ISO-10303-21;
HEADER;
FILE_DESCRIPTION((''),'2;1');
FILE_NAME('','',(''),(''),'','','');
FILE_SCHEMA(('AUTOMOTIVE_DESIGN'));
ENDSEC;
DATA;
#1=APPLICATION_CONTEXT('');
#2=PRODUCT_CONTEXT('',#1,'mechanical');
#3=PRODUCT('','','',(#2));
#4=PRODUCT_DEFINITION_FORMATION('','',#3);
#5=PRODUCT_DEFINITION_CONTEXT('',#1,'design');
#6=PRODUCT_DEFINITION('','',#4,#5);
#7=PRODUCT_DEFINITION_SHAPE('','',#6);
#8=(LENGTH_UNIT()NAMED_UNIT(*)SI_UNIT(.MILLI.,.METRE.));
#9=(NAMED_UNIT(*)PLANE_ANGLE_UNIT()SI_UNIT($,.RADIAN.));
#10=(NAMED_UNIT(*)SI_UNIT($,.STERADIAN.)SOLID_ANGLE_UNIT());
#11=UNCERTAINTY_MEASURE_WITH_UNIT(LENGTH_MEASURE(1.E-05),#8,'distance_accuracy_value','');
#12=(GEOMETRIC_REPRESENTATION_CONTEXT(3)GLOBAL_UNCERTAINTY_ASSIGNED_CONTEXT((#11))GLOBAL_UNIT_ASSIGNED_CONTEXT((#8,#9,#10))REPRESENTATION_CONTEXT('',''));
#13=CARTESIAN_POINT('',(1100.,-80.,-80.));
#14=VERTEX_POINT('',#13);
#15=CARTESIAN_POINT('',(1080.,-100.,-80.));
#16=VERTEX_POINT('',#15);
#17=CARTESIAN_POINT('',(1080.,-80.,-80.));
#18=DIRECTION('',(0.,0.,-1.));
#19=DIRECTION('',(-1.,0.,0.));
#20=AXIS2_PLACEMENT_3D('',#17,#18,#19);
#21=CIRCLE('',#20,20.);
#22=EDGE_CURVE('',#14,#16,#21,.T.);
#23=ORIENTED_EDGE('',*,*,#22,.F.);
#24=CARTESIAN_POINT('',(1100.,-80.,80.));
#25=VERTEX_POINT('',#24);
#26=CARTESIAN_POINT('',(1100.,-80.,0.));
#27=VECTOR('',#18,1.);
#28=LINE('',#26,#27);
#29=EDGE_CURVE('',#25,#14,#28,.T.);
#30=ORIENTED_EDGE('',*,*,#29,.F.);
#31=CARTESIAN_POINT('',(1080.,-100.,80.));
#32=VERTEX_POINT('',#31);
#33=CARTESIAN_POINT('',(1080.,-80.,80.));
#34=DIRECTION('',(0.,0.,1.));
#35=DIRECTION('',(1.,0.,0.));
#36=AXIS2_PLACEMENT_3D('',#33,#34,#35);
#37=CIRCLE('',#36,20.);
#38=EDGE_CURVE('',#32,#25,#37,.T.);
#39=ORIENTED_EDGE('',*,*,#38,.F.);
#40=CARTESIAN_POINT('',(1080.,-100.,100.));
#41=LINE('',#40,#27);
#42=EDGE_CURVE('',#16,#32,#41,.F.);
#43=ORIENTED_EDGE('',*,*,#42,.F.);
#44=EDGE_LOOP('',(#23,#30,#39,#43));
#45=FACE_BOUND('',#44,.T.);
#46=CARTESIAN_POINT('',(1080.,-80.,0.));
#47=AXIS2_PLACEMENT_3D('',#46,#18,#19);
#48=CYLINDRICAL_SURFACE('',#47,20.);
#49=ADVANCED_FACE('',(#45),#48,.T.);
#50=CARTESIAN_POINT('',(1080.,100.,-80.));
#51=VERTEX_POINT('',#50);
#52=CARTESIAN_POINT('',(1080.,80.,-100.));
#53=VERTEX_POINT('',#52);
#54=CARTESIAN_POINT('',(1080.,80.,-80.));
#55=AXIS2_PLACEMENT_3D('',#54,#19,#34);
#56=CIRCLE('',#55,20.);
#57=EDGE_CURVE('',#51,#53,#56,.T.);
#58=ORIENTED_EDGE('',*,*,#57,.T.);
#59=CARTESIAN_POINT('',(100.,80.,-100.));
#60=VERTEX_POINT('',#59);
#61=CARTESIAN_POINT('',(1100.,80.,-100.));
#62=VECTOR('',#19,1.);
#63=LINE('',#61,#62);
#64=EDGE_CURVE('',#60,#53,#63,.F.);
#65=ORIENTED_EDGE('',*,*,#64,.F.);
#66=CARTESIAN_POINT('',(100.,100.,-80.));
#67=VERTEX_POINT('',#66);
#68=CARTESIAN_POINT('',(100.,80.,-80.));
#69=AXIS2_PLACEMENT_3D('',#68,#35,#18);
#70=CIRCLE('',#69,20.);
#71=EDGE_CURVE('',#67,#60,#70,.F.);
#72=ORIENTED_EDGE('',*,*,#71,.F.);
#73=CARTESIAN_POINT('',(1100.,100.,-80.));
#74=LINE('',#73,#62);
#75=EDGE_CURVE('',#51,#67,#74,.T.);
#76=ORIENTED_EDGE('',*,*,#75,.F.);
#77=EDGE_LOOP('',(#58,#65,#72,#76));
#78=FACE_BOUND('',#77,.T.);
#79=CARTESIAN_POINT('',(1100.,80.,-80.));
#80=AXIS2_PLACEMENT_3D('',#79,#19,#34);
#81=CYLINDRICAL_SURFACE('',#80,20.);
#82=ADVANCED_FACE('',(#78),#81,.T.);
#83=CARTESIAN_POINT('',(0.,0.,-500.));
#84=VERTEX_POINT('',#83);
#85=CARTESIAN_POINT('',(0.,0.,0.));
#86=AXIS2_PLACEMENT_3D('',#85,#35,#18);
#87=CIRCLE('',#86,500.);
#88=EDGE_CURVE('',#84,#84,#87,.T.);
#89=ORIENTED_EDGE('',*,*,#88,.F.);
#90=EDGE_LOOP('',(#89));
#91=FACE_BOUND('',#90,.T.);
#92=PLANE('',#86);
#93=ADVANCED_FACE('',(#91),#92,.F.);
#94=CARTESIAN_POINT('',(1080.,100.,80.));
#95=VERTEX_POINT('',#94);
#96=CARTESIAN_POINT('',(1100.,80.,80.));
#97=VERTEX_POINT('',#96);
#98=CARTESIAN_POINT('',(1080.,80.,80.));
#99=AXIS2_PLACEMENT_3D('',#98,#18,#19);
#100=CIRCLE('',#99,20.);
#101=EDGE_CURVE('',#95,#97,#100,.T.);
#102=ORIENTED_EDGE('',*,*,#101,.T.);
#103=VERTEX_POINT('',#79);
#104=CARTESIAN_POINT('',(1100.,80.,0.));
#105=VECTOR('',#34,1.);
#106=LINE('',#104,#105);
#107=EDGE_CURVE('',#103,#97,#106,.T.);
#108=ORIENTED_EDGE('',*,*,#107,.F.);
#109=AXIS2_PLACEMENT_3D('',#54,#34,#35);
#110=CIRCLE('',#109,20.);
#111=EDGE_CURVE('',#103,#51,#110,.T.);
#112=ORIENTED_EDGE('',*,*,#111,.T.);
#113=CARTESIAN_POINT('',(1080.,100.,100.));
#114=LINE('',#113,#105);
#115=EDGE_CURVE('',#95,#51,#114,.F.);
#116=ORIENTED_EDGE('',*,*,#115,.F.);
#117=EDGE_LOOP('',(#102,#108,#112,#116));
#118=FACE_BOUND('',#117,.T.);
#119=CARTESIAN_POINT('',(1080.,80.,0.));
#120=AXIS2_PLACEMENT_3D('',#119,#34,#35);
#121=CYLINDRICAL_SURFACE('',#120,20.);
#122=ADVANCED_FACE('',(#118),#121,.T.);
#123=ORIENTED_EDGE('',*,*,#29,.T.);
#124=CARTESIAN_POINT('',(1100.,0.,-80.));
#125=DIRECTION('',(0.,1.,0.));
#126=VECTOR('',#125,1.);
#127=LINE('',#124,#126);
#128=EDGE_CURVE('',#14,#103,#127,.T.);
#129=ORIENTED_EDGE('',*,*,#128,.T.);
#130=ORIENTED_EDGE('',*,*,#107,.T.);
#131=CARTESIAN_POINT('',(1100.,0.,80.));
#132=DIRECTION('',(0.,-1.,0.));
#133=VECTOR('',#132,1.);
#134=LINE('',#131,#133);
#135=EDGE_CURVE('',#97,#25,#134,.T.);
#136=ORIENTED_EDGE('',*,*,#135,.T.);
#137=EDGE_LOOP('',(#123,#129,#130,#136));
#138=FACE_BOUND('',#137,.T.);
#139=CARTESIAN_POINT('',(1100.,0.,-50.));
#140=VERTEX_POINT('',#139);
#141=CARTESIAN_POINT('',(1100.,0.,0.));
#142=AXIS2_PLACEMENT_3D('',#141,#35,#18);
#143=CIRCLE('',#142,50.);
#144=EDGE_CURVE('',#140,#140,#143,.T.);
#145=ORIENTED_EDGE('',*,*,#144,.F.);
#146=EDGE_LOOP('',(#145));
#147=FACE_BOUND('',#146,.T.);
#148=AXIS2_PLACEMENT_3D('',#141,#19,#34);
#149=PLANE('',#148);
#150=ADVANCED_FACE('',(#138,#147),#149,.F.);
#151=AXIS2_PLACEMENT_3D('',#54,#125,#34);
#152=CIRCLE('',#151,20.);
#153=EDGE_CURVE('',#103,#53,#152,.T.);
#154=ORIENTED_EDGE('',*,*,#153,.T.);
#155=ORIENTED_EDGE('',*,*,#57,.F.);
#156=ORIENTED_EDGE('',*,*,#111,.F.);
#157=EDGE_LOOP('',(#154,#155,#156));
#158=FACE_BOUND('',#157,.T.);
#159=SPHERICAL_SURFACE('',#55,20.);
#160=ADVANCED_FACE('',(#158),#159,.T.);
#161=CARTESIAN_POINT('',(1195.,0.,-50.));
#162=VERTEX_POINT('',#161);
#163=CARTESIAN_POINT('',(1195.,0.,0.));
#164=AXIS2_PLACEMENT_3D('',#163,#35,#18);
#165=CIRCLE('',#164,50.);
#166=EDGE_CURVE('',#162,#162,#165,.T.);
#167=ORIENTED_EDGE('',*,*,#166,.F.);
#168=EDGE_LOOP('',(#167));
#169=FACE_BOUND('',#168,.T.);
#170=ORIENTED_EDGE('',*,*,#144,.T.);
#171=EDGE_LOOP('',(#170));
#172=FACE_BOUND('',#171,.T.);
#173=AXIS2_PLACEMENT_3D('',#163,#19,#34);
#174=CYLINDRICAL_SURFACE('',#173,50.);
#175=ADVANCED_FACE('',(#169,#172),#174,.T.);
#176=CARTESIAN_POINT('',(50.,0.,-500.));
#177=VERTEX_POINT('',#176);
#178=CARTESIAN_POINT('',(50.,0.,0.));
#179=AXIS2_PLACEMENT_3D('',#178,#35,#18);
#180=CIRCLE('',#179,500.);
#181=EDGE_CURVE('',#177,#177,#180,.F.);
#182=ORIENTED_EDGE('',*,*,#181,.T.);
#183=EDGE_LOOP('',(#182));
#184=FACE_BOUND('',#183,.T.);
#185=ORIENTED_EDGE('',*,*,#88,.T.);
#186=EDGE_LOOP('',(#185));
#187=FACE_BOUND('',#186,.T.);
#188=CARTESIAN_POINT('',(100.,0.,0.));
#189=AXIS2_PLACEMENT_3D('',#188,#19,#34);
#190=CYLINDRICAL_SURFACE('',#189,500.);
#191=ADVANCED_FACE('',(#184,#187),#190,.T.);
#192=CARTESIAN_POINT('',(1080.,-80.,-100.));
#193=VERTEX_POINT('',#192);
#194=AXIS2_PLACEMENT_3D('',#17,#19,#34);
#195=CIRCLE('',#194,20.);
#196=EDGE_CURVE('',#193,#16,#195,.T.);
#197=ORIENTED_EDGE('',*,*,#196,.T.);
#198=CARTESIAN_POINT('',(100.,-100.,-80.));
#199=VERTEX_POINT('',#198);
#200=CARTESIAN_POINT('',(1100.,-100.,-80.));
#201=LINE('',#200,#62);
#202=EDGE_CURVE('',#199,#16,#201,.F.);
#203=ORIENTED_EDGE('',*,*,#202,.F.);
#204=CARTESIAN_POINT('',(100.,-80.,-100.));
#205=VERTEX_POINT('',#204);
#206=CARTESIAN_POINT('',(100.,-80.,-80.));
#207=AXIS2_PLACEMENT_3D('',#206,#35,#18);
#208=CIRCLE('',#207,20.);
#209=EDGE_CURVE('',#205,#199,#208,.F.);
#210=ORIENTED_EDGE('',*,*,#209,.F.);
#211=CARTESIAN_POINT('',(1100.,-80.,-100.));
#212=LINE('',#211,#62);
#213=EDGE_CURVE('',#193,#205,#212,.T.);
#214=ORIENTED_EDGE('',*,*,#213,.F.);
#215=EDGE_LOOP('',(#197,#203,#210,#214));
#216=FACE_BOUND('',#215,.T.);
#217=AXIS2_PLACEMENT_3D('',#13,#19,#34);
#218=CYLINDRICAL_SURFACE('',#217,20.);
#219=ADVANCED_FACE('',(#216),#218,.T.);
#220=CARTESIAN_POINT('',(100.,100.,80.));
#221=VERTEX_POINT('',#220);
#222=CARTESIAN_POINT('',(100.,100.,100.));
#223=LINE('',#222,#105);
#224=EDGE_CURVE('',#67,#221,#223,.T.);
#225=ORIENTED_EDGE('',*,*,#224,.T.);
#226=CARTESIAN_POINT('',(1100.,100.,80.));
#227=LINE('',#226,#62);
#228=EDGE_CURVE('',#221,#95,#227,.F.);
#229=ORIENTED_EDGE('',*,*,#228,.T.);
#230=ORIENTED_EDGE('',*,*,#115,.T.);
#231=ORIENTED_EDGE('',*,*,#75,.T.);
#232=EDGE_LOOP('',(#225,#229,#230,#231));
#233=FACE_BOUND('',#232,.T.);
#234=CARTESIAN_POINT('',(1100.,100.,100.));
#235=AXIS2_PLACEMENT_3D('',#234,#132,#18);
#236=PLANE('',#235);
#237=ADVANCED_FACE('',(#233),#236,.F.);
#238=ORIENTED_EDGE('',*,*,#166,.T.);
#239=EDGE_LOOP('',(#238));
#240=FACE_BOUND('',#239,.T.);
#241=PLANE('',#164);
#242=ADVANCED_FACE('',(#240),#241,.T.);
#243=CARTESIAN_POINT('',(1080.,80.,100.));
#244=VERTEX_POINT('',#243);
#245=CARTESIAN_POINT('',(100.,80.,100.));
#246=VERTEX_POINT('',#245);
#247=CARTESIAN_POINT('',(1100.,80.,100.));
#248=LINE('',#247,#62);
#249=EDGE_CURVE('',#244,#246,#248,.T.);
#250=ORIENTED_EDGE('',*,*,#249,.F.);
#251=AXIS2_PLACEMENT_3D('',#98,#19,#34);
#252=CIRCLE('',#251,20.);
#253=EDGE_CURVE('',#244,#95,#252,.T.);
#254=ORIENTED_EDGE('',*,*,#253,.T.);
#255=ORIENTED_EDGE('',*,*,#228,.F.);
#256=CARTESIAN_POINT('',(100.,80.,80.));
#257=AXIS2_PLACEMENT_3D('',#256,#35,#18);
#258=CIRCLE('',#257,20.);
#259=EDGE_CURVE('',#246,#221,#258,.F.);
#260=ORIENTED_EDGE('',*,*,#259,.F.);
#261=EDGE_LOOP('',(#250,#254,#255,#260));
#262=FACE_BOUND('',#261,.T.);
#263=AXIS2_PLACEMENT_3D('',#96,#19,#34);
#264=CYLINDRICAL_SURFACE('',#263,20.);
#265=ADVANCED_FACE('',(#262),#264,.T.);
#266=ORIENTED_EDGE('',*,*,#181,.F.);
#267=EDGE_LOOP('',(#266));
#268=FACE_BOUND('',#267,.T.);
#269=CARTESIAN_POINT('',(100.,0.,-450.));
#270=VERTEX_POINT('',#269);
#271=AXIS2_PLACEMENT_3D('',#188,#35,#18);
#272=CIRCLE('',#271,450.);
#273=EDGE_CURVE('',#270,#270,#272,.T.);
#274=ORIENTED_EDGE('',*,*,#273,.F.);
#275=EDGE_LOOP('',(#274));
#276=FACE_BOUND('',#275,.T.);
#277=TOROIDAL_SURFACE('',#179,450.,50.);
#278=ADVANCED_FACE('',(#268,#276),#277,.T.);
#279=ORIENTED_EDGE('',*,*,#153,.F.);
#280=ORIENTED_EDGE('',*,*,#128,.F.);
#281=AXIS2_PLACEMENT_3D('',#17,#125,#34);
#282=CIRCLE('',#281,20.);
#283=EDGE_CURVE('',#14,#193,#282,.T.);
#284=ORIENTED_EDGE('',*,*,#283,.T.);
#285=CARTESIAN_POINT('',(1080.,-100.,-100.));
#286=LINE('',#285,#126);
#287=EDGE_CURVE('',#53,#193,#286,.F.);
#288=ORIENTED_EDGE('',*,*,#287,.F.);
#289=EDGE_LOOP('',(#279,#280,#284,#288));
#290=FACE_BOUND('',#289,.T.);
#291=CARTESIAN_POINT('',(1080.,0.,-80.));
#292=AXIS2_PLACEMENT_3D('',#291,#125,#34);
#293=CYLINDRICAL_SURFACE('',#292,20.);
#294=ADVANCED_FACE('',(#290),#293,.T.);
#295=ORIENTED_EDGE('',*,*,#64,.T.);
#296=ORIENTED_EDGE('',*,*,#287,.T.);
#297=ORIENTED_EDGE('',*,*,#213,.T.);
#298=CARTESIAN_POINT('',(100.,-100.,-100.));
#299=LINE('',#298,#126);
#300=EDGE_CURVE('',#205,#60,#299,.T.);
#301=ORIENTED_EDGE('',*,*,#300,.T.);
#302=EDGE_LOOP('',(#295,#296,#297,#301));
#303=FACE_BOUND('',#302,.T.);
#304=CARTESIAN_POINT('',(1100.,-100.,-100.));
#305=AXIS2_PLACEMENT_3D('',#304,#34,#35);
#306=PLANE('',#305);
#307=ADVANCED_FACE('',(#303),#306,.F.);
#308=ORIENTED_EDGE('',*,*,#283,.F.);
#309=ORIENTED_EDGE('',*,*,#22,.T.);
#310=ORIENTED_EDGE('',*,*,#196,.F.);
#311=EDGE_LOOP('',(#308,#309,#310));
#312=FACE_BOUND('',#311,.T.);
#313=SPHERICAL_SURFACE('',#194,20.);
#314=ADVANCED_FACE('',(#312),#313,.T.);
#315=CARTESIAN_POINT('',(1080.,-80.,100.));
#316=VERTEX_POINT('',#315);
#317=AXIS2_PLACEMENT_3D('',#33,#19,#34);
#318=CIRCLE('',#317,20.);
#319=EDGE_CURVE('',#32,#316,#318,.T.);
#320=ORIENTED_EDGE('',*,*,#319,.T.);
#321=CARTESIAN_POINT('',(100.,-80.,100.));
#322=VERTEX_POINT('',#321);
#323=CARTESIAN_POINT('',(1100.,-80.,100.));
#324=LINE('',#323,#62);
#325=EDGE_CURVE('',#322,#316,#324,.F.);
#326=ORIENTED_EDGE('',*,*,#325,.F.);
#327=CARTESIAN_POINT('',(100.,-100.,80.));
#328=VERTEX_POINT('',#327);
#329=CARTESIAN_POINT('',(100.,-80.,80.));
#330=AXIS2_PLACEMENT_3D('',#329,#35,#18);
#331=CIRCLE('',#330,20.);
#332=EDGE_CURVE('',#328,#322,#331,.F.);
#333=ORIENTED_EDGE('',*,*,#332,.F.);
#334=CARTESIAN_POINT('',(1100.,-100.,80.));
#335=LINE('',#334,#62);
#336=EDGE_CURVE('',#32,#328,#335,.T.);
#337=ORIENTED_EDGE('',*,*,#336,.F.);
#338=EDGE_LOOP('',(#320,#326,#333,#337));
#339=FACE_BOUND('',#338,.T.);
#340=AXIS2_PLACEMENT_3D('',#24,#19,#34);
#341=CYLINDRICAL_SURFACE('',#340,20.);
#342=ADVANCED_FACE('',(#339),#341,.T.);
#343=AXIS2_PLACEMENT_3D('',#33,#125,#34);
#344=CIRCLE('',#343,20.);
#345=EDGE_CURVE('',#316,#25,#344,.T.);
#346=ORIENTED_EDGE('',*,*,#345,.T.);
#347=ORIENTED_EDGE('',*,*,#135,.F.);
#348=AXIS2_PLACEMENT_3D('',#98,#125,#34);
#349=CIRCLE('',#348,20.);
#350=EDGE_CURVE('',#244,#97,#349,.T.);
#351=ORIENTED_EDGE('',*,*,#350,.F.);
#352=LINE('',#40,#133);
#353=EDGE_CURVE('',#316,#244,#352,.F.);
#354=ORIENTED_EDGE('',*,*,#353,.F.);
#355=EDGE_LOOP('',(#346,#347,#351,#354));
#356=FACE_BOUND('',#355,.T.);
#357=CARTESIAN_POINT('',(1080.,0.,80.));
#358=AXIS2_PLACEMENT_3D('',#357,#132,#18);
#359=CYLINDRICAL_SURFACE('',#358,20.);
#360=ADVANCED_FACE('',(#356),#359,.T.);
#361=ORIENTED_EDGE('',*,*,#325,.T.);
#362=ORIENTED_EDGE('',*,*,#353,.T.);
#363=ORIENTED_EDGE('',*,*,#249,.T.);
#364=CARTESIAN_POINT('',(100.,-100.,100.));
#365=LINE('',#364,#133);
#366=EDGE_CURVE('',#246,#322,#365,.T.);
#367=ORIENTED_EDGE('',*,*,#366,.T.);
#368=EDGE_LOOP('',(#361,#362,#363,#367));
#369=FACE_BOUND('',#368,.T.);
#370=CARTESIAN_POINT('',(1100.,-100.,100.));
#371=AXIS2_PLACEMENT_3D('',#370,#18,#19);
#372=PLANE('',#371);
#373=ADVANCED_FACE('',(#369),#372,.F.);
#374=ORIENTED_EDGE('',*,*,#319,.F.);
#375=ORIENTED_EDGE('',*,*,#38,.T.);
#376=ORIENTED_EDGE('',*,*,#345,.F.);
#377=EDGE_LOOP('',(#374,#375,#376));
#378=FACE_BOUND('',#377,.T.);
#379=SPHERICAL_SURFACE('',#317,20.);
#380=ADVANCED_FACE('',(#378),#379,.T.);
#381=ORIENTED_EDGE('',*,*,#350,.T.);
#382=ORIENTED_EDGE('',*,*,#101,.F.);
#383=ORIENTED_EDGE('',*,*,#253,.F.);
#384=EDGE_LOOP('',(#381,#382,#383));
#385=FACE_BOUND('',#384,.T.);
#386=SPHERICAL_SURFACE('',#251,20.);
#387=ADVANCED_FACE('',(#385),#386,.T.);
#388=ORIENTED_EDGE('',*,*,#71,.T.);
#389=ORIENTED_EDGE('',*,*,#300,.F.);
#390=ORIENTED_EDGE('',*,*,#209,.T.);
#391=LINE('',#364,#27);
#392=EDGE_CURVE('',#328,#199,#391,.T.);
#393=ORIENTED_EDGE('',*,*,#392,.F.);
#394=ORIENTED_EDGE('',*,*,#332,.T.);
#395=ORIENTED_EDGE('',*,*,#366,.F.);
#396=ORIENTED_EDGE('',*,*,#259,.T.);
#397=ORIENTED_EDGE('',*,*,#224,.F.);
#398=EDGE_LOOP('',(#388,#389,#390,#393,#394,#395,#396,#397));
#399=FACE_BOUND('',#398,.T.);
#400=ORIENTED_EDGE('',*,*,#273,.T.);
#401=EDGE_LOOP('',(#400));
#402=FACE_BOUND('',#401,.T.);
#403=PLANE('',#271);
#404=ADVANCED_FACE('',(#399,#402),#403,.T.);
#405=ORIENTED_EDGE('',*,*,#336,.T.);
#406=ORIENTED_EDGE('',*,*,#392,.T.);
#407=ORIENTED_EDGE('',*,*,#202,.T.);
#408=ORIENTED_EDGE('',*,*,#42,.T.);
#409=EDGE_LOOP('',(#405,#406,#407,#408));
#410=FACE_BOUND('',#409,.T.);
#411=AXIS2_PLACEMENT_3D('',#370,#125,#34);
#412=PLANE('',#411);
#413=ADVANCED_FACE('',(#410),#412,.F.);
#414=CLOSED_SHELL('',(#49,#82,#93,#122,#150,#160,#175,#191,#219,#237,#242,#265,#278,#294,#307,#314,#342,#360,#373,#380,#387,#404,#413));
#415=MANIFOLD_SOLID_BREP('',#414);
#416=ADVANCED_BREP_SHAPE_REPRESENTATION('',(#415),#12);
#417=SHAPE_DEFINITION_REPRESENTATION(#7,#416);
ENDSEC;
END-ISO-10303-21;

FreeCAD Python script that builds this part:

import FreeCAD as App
import Part
import Sketcher

V = App.Vector
Q = App.Units.Quantity


def edges_at(feature, points):
    """Names of the edges that pass closest to the given points."""
    edges = feature.Shape.Edges
    near = lambda p: min(range(len(edges)), key=lambda i: edges[i].distToShape(Part.Vertex(*p))[0])
    return sorted({f"Edge{near(p) + 1}" for p in points})


def add_polygon(sketch, points):
    """Adds a closed chain of lines whose ends are joined by coincident constraints."""
    first, n = sketch.GeometryCount, len(points)
    for a, b in zip(points, points[1:] + points[:1]):
        sketch.addGeometry(Part.LineSegment(App.Vector(*a, 0), App.Vector(*b, 0)), False)
    for i in range(n):
        sketch.addConstraint(Sketcher.Constraint("Coincident", first + i, 2, first + (i + 1) % n, 1))

doc = App.newDocument("Part")
body = doc.addObject("PartDesign::Body", "Body")

sketch1 = body.newObject("Sketcher::SketchObject", "Sketch")
sketch1.AttachmentSupport = (doc.getObject("YZ_Plane"), [""])
sketch1.MapMode = "FlatFace"
sketch1.addGeometry(Part.Circle(V(0, 0, 0), V(0, 0, 1), 500), False)
sketch1.addConstraint(Sketcher.Constraint("Coincident", 0, 3, -1, 1))
sketch1.addConstraint(Sketcher.Constraint("Diameter", 0, Q("1000 mm")))
pad1 = body.newObject("PartDesign::Pad", "Pad")
pad1.Profile = sketch1
pad1.Length = 100

sketch2 = body.newObject("Sketcher::SketchObject", "Sketch001")
sketch2.AttachmentSupport = (doc.getObject("YZ_Plane"), [""])
sketch2.MapMode = "FlatFace"
sketch2.AttachmentOffset = App.Placement(V(0, 0, 100), App.Rotation())
add_polygon(sketch2, [(100, 100), (-100, 100), (-100, -100), (100, -100)])
sketch2.addConstraint(Sketcher.Constraint("Horizontal", 0))
sketch2.addConstraint(Sketcher.Constraint("Vertical", 1))
sketch2.addConstraint(Sketcher.Constraint("Horizontal", 2))
sketch2.addConstraint(Sketcher.Constraint("Vertical", 3))
sketch2.addConstraint(Sketcher.Constraint("Symmetric", 0, 2, 2, 2, -1, 1))
sketch2.addConstraint(Sketcher.Constraint("Equal", 2, 1))
sketch2.addConstraint(Sketcher.Constraint("DistanceX", 0, 2, 0, 1, Q("200 mm")))
pad2 = body.newObject("PartDesign::Pad", "Pad001")
pad2.Profile = sketch2
pad2.Length = 1000

sketch3 = body.newObject("Sketcher::SketchObject", "Sketch002")
sketch3.AttachmentSupport = (doc.getObject("YZ_Plane"), [""])
sketch3.MapMode = "FlatFace"
sketch3.AttachmentOffset = App.Placement(V(0, 0, 1100), App.Rotation())
sketch3.addGeometry(Part.Circle(V(0, 0, 0), V(0, 0, 1), 50), False)
sketch3.addConstraint(Sketcher.Constraint("Coincident", 0, 3, -1, 1))
sketch3.addConstraint(Sketcher.Constraint("Diameter", 0, Q("100 mm")))
pad3 = body.newObject("PartDesign::Pad", "Pad002")
pad3.Profile = sketch3
pad3.Length = 95
doc.recompute()

fillet = body.newObject("PartDesign::Fillet", "Fillet")
fillet.Base = (pad3, edges_at(pad3, [(100, 0, 500)]))
fillet.Radius = 50
doc.recompute()

fillet2 = body.newObject("PartDesign::Fillet", "Fillet001")
fillet2.Base = (fillet, edges_at(fillet, [
    (600, -100, -100),
    (600, 100, -100),
    (600, 100, 100),
    (600, -100, 100),
]))
fillet2.Radius = 20
doc.recompute()

fillet3 = body.newObject("PartDesign::Fillet", "Fillet002")
fillet3.Base = (fillet2, edges_at(fillet2, [
    (1100, 100, 0),
    (1100, 0, -100),
    (1100, 0, 100),
    (1100, -100, 0),
    (1100, 94.142, 94.142),
    (1100, -94.142, 94.142),
    (1100, -94.142, -94.142),
    (1100, 94.142, -94.142),
]))
fillet3.Radius = 20

doc.recompute()
